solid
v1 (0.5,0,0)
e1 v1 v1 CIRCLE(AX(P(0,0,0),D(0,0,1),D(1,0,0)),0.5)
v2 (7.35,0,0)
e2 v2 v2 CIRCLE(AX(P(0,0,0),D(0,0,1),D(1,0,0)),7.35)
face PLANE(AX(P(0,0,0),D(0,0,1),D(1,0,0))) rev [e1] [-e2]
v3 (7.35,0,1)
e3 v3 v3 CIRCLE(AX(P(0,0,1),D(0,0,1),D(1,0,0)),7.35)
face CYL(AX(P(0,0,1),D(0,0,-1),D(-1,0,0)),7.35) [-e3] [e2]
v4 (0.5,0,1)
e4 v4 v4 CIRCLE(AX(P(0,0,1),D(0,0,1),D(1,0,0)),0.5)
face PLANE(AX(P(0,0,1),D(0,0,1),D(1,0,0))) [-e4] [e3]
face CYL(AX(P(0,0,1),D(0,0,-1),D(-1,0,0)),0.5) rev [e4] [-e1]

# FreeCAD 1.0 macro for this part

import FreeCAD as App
import Part
import Sketcher

V = App.Vector

doc = App.newDocument("Part")
body = doc.addObject("PartDesign::Body", "Body")

sketch1 = body.newObject("Sketcher::SketchObject", "Sketch")
sketch1.AttachmentSupport = (doc.getObject("XY_Plane"), [""])
sketch1.MapMode = "FlatFace"
sketch1.addGeometry(Part.Circle(V(0, 0, 0), V(0, 0, 1), 7.3), False)
sketch1.addGeometry(Part.Circle(V(0, 0, 0), V(0, 0, 1), 0.5), False)
sketch1.addConstraint(Sketcher.Constraint("Coincident", 0, 3, -1, 1))
sketch1.addConstraint(Sketcher.Constraint("Coincident", 1, 3, -1, 1))
sketch1.addConstraint(Sketcher.Constraint("Diameter", 1, 1.0))
sketch1.addConstraint(Sketcher.Constraint("Diameter", 0, 14.7))
pad1 = body.newObject("PartDesign::Pad", "Pad")
pad1.Profile = sketch1
pad1.Length = 1

doc.recompute()
